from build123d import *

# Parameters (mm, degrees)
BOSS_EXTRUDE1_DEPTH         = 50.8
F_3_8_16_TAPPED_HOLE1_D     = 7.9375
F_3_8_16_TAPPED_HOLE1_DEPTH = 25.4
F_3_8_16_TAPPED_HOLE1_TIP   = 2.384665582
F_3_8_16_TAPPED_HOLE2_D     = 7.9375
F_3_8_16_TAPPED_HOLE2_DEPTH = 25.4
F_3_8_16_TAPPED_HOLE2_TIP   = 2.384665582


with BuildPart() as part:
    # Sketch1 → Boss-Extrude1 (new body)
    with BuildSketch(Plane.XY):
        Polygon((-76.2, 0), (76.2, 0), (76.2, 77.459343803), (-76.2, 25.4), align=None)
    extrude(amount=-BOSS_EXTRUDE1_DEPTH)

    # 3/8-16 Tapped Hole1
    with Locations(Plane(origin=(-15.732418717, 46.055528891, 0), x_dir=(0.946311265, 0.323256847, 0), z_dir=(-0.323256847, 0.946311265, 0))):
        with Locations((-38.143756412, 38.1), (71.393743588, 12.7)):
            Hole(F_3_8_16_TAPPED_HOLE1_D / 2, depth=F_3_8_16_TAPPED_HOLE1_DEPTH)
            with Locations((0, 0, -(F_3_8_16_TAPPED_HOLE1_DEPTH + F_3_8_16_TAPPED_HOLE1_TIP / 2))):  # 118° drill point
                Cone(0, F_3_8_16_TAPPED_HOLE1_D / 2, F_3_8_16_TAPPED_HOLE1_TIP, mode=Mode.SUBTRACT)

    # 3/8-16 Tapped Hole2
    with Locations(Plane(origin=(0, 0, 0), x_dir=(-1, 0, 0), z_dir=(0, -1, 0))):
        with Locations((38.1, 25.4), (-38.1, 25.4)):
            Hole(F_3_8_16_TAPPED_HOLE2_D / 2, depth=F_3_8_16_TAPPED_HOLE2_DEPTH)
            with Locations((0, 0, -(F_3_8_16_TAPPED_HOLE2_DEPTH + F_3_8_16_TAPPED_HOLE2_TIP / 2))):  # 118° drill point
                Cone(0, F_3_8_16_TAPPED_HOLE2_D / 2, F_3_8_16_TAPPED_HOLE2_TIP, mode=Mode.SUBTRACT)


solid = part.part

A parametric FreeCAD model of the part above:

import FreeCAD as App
import Part
import Sketcher
Q = App.Units.Quantity

doc = App.newDocument("Part")
params = doc.addObject("Spreadsheet::Sheet", "Params")
for row, (alias, value) in enumerate([
    ("sketch1_width", "6 in"),
    ("sketch1_height", "1 in"),
    ("pad1_length", "2 in"),
    ("sketch2_diameter", "0.3125 in"),
    ("hole_diameter", "0.3125 in"),
    ("hole_depth", "1 in"),
    ("sketch3_diameter", "0.3125 in"),
    ("hole2_diameter", "0.3125 in"),
    ("hole2_depth", "1 in"),
], start=1):
    params.set(f"A{row}", alias)
    params.set(f"B{row}", "=" + value)
    params.setAlias(f"B{row}", alias)

body = doc.addObject("PartDesign::Body", "Body")

sketch1 = doc.addObject("Sketcher::SketchObject", "Sketch")
body.addObject(sketch1)
sketch1.AttachmentSupport = (doc.XY_Plane, [""])
sketch1.MapMode = "FlatFace"
sketch1.addGeometry([
    Part.LineSegment(App.Vector(-76.2, 0, 0), App.Vector(76.2, 0, 0)),
    Part.LineSegment(App.Vector(76.2, 0, 0), App.Vector(76.2, 77.459344, 0)),
    Part.LineSegment(App.Vector(76.2, 77.459344, 0), App.Vector(-76.2, 25.4, 0)),
    Part.LineSegment(App.Vector(-76.2, 25.4, 0), App.Vector(-76.2, 0, 0)),
], False)
sketch1.addConstraint([
    Sketcher.Constraint("Coincident", 0, 2, 1, 1),
    Sketcher.Constraint("Coincident", 1, 2, 2, 1),
    Sketcher.Constraint("Coincident", 2, 2, 3, 1),
    Sketcher.Constraint("Coincident", 3, 2, 0, 1),
    Sketcher.Constraint("Horizontal", 0),
    Sketcher.Constraint("Vertical", 1),
    Sketcher.Constraint("Vertical", 3),
    Sketcher.Constraint("Symmetric", 0, 2, 3, 2, -1, 1),
    Sketcher.Constraint("DistanceX", 0, 1, 0, 2, Q("6 in")),
    Sketcher.Constraint("DistanceY", 3, 2, 3, 1, Q("1 in")),
    Sketcher.Constraint("Angle", 2, Q("-161.14 deg")),
])
sketch1.setExpression("Constraints[8]", "Params.sketch1_width")
sketch1.setExpression("Constraints[9]", "Params.sketch1_height")
pad1 = doc.addObject("PartDesign::Pad", "Pad")
body.addObject(pad1)
pad1.Profile = sketch1
pad1.setExpression("Length", "Params.pad1_length")
pad1.Reversed = True

sketch2 = doc.addObject("Sketcher::SketchObject", "Sketch001")
body.addObject(sketch2)
sketch2.Placement = App.Placement(App.Vector(-15.732419, 46.055529, 0), App.Rotation(App.Vector(0.946311265, 0.323256847, 0), App.Vector(0, 0, -0.999999999), App.Vector(-0.323256847, 0.946311265, 0), "ZXY"))
sketch2.addGeometry([
    Part.Circle(App.Vector(-38.143756, 38.1, 0), App.Vector(0, 0, 1), 3.96875),
    Part.Circle(App.Vector(71.393744, 12.7, 0), App.Vector(0, 0, 1), 3.96875),
], False)
sketch2.addConstraint([
    Sketcher.Constraint("Equal", 0, 1),
    Sketcher.Constraint("Diameter", 0, Q("0.3125 in")),
    Sketcher.Constraint("DistanceY", 1, 3, 0, 3, Q("1 in")),
    Sketcher.Constraint("DistanceY", -1, 1, 0, 3, Q("1.5 in")),
    Sketcher.Constraint("DistanceX", 0, 3, 1, 3, Q("4.3125 in")),
    Sketcher.Constraint("DistanceX", 0, 3, -1, 1, 38.143756),
])
sketch2.setExpression("Constraints[1]", "Params.sketch2_diameter")
doc.recompute()
hole = doc.addObject("PartDesign::Hole", "Hole")
body.addObject(hole)
hole.Profile = sketch2
hole.ThreadType = "None"
hole.setExpression("Diameter", "Params.hole_diameter")
hole.DepthType = "Dimension"
hole.setExpression("Depth", "Params.hole_depth")
hole.DrillPoint = "Angled"
hole.DrillPointAngle = 118

sketch3 = doc.addObject("Sketcher::SketchObject", "Sketch002")
body.addObject(sketch3)
sketch3.AttachmentSupport = (doc.XZ_Plane, [""])
sketch3.MapMode = "FlatFace"
sketch3.addGeometry([
    Part.Circle(App.Vector(-38.1, -25.4, 0), App.Vector(0, 0, 1), 3.96875),
    Part.Circle(App.Vector(38.1, -25.4, 0), App.Vector(0, 0, 1), 3.96875),
], False)
sketch3.addConstraint([
    Sketcher.Constraint("Equal", 0, 1),
    Sketcher.Constraint("Symmetric", 0, 3, 1, 3, -2),
    Sketcher.Constraint("Diameter", 0, Q("0.3125 in")),
    Sketcher.Constraint("DistanceY", 0, 3, -1, 1, Q("1 in")),
    Sketcher.Constraint("DistanceX", 0, 3, 1, 3, Q("3 in")),
])
sketch3.setExpression("Constraints[2]", "Params.sketch3_diameter")
doc.recompute()
hole2 = doc.addObject("PartDesign::Hole", "Hole001")
body.addObject(hole2)
hole2.Profile = sketch3
hole2.ThreadType = "None"
hole2.setExpression("Diameter", "Params.hole2_diameter")
hole2.DepthType = "Dimension"
hole2.setExpression("Depth", "Params.hole2_depth")
hole2.DrillPoint = "Angled"
hole2.DrillPointAngle = 118

doc.recompute()
